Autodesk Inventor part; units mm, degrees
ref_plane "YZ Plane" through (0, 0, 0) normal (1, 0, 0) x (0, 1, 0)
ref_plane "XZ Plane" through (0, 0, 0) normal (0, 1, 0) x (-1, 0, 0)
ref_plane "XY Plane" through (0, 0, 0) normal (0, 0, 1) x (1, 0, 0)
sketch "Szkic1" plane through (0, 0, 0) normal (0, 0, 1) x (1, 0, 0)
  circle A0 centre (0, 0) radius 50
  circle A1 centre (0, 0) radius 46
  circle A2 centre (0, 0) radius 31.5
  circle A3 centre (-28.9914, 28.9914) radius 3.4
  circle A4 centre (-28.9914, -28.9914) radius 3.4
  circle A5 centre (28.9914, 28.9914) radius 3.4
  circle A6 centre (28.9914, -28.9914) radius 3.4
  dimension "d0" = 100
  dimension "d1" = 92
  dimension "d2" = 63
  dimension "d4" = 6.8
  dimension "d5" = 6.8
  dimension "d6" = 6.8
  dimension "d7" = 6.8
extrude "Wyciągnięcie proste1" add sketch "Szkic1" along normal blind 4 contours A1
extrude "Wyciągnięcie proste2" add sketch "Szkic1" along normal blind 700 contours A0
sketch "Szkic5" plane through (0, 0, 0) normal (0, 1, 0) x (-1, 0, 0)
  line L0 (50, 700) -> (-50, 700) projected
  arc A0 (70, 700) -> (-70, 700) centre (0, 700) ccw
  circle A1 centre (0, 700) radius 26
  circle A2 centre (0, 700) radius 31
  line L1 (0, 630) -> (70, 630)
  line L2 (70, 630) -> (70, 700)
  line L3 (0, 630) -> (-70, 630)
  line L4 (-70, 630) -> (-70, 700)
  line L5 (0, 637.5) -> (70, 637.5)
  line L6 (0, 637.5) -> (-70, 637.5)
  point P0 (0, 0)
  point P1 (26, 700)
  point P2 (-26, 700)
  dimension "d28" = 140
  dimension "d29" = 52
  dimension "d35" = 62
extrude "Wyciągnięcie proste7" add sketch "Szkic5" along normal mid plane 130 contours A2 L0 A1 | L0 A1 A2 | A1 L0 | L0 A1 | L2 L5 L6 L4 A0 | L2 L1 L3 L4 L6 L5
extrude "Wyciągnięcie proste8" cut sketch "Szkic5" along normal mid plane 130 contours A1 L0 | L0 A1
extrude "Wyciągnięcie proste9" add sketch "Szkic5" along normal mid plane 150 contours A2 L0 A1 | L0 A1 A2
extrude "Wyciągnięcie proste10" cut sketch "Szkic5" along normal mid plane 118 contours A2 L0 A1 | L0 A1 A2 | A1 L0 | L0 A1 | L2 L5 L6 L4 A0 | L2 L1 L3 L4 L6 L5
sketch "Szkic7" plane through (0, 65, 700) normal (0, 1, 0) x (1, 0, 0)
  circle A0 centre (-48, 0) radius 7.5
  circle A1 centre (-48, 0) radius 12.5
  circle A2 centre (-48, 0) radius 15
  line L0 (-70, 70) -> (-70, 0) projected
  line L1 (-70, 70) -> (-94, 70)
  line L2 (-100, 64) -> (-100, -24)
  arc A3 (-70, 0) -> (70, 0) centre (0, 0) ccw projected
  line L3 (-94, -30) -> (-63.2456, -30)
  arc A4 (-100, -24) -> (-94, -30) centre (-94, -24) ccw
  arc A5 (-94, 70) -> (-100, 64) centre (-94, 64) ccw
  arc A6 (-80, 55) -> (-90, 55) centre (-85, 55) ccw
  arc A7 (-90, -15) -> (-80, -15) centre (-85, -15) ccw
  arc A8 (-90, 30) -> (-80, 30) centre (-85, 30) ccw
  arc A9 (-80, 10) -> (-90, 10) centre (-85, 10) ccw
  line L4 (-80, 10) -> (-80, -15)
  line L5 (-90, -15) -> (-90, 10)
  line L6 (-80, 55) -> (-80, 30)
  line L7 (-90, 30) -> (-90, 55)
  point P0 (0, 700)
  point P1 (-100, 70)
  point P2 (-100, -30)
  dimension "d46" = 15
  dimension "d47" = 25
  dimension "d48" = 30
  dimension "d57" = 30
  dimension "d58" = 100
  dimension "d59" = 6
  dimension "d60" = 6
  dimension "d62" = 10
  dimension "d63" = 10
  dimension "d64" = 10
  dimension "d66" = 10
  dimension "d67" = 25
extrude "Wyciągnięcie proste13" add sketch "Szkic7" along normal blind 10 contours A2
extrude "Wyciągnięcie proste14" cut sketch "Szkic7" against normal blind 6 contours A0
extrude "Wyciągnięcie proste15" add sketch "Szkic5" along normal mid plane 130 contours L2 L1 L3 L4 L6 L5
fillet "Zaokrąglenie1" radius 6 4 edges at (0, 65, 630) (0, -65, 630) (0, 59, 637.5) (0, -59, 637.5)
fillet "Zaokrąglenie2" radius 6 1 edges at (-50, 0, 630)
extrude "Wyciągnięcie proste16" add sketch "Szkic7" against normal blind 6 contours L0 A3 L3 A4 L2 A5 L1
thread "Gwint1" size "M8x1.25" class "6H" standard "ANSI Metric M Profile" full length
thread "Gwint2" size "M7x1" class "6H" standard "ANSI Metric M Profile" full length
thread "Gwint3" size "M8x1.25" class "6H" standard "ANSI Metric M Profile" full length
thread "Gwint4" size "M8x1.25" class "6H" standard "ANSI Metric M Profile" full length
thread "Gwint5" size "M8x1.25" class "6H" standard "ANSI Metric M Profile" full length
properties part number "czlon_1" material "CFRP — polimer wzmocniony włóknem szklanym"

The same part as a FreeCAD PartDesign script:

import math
import FreeCAD as App
import Part
import Sketcher


def edges_at(feature, points):
    """Names of the edges that pass closest to the given points."""
    edges = feature.Shape.Edges
    near = lambda p: min(range(len(edges)), key=lambda i: edges[i].distToShape(Part.Vertex(*p))[0])
    return sorted({f"Edge{near(p) + 1}" for p in points})

doc = App.newDocument("Part")
params = doc.addObject("Spreadsheet::Sheet", "Params")
for row, (alias, value) in enumerate([
    ("sketch1_diameter", "92 mm"),
    ("sketch1_diameter2", "63 mm"),
    ("sketch1_diameter3", "6.8 mm"),
    ("pad1_length", "4 mm"),
    ("sketch2_diameter", "100 mm"),
    ("sketch2_diameter2", "92 mm"),
    ("pad2_length", "700 mm"),
    ("sketch3_radius", "70 mm"),
    ("sketch3_height", "70 mm"),
    ("pad3_length", "130 mm"),
    ("sketch4_diameter", "52 mm"),
    ("pocket1_length", "130 mm"),
    ("sketch5_diameter", "62 mm"),
    ("sketch5_diameter2", "52 mm"),
    ("pad4_length", "150 mm"),
    ("sketch6_radius", "70 mm"),
    ("sketch6_height", "70 mm"),
    ("pocket2_length", "118 mm"),
    ("sketch7_diameter", "30 mm"),
    ("sketch7_diameter2", "25 mm"),
    ("pad5_length", "10 mm"),
    ("sketch8_diameter", "15 mm"),
    ("pocket3_length", "6 mm"),
    ("sketch9_width", "140 mm"),
    ("sketch9_height", "7.5 mm"),
    ("pad6_length", "130 mm"),
    ("fillet_radius", "6 mm"),
    ("fillet2_radius", "6 mm"),
    ("sketch10_radius", "6 mm"),
    ("sketch10_radius2", "5 mm"),
    ("sketch10_height", "25 mm"),
    ("sketch10_radius3", "70 mm"),
    ("pad7_length", "6 mm"),
], start=1):
    params.set(f"A{row}", alias)
    params.set(f"B{row}", "=" + value)
    params.setAlias(f"B{row}", alias)

body = doc.addObject("PartDesign::Body", "Body")
body.AllowCompound = True

# Sketch on XY plane
sketch1 = body.newObject("Sketcher::SketchObject", "Sketch")
sketch1.AttachmentSupport = (doc.getObject("XY_Plane"), [""])
sketch1.MapMode = "FlatFace"
sketch1.addGeometry(Part.Circle(App.Vector(0, 0, 0), App.Vector(0, 0, 1), 46), False)
sketch1.addGeometry(Part.Circle(App.Vector(-29, -29, 0), App.Vector(0, 0, 1), 3.4), False)
sketch1.addGeometry(Part.Circle(App.Vector(29, -29, 0), App.Vector(0, 0, 1), 3.4), False)
sketch1.addGeometry(Part.Circle(App.Vector(-29, 29, 0), App.Vector(0, 0, 1), 3.4), False)
sketch1.addGeometry(Part.Circle(App.Vector(0, 0, 0), App.Vector(0, 0, 1), 31.5), False)
sketch1.addGeometry(Part.Circle(App.Vector(29, 29, 0), App.Vector(0, 0, 1), 3.4), False)
sketch1.addConstraint(Sketcher.Constraint("Coincident", 0, 3, -1, 1))
sketch1.addConstraint(Sketcher.Constraint("Coincident", 4, 3, -1, 1))
sketch1.addConstraint(Sketcher.Constraint("Equal", 1, 2))
sketch1.addConstraint(Sketcher.Constraint("Equal", 2, 3))
sketch1.addConstraint(Sketcher.Constraint("Equal", 3, 5))
sketch1.addConstraint(Sketcher.Constraint("Symmetric", 2, 3, 3, 3, -1, 1))
sketch1.addConstraint(Sketcher.Constraint("Symmetric", 1, 3, 5, 3, -1, 1))
sketch1.addConstraint(Sketcher.Constraint("Symmetric", 1, 3, 2, 3, -2))
sketch1.addConstraint(Sketcher.Constraint("Diameter", 0, 92.0))
sketch1.addConstraint(Sketcher.Constraint("Diameter", 4, 63.0))
sketch1.addConstraint(Sketcher.Constraint("Diameter", 1, 6.8))
sketch1.addConstraint(Sketcher.Constraint("DistanceX", 1, 3, -1, 1, 28.9914))
sketch1.addConstraint(Sketcher.Constraint("DistanceY", 1, 3, -1, 1, 28.9914))
sketch1.setExpression("Constraints[8]", "Params.sketch1_diameter")
sketch1.setExpression("Constraints[9]", "Params.sketch1_diameter2")
sketch1.setExpression("Constraints[10]", "Params.sketch1_diameter3")
pad1 = body.newObject("PartDesign::Pad", "Pad")
pad1.Profile = sketch1
pad1.setExpression("Length", "Params.pad1_length")

# Sketch on XY plane
sketch2 = body.newObject("Sketcher::SketchObject", "Sketch001")
sketch2.AttachmentSupport = (doc.getObject("XY_Plane"), [""])
sketch2.MapMode = "FlatFace"
sketch2.addGeometry(Part.Circle(App.Vector(0, 0, 0), App.Vector(0, 0, 1), 50), False)
sketch2.addGeometry(Part.Circle(App.Vector(0, 0, 0), App.Vector(0, 0, 1), 46), False)
sketch2.addConstraint(Sketcher.Constraint("Coincident", 0, 3, -1, 1))
sketch2.addConstraint(Sketcher.Constraint("Coincident", 1, 3, -1, 1))
sketch2.addConstraint(Sketcher.Constraint("Diameter", 0, 100.0))
sketch2.addConstraint(Sketcher.Constraint("Diameter", 1, 92.0))
sketch2.setExpression("Constraints[2]", "Params.sketch2_diameter")
sketch2.setExpression("Constraints[3]", "Params.sketch2_diameter2")
pad2 = body.newObject("PartDesign::Pad", "Pad001")
pad2.Profile = sketch2
pad2.setExpression("Length", "Params.pad2_length")

# Sketch on XZ plane
sketch3 = body.newObject("Sketcher::SketchObject", "Sketch002")
sketch3.AttachmentSupport = (doc.getObject("XZ_Plane"), [""])
sketch3.MapMode = "FlatFace"
sketch3.addGeometry(Part.ArcOfCircle(Part.Circle(App.Vector(0, 700, 0), App.Vector(0, 0, 1), 70), math.radians(0), math.radians(180)), False)
sketch3.addGeometry(Part.LineSegment(App.Vector(70, 700, 0), App.Vector(70, 630, 0)), False)
sketch3.addGeometry(Part.LineSegment(App.Vector(70, 630, 0), App.Vector(-70, 630, 0)), False)
sketch3.addGeometry(Part.LineSegment(App.Vector(-70, 630, 0), App.Vector(-70, 700, 0)), False)
sketch3.addConstraint(Sketcher.Constraint("Tangent", 0, 1, 1, 1))
sketch3.addConstraint(Sketcher.Constraint("Coincident", 1, 2, 2, 1))
sketch3.addConstraint(Sketcher.Constraint("Coincident", 2, 2, 3, 1))
sketch3.addConstraint(Sketcher.Constraint("Tangent", 3, 2, 0, 2))
sketch3.addConstraint(Sketcher.Constraint("Vertical", 1))
sketch3.addConstraint(Sketcher.Constraint("Horizontal", 2))
sketch3.addConstraint(Sketcher.Constraint("Vertical", 3))
sketch3.addConstraint(Sketcher.Constraint("PointOnObject", 0, 3, -2))
sketch3.addConstraint(Sketcher.Constraint("Radius", 0, 70.0))
sketch3.addConstraint(Sketcher.Constraint("DistanceY", 1, 2, 1, 1, 70.0))
sketch3.addConstraint(Sketcher.Constraint("DistanceY", -1, 1, 0, 3, 700.0))
sketch3.setExpression("Constraints[8]", "Params.sketch3_radius")
sketch3.setExpression("Constraints[9]", "Params.sketch3_height")
pad3 = body.newObject("PartDesign::Pad", "Pad002")
pad3.Profile = sketch3
pad3.setExpression("Length", "Params.pad3_length")
pad3.Midplane = True

# Sketch on XZ plane
sketch4 = body.newObject("Sketcher::SketchObject", "Sketch003")
sketch4.AttachmentSupport = (doc.getObject("XZ_Plane"), [""])
sketch4.MapMode = "FlatFace"
sketch4.addGeometry(Part.Circle(App.Vector(0, 700, 0), App.Vector(0, 0, 1), 26), False)
sketch4.addConstraint(Sketcher.Constraint("PointOnObject", 0, 3, -2))
sketch4.addConstraint(Sketcher.Constraint("Diameter", 0, 52.0))
sketch4.addConstraint(Sketcher.Constraint("DistanceY", -1, 1, 0, 3, 700.0))
sketch4.setExpression("Constraints[1]", "Params.sketch4_diameter")
pocket1 = body.newObject("PartDesign::Pocket", "Pocket")
pocket1.Profile = sketch4
pocket1.setExpression("Length", "Params.pocket1_length")
pocket1.Midplane = True

# Sketch on XZ plane
sketch5 = body.newObject("Sketcher::SketchObject", "Sketch004")
sketch5.AttachmentSupport = (doc.getObject("XZ_Plane"), [""])
sketch5.MapMode = "FlatFace"
sketch5.addGeometry(Part.Circle(App.Vector(0, 700, 0), App.Vector(0, 0, 1), 31), False)
sketch5.addGeometry(Part.Circle(App.Vector(0, 700, 0), App.Vector(0, 0, 1), 26), False)
sketch5.addConstraint(Sketcher.Constraint("Coincident", 1, 3, 0, 3))
sketch5.addConstraint(Sketcher.Constraint("PointOnObject", 0, 3, -2))
sketch5.addConstraint(Sketcher.Constraint("Diameter", 0, 62.0))
sketch5.addConstraint(Sketcher.Constraint("Diameter", 1, 52.0))
sketch5.addConstraint(Sketcher.Constraint("DistanceY", -1, 1, 0, 3, 700.0))
sketch5.setExpression("Constraints[2]", "Params.sketch5_diameter")
sketch5.setExpression("Constraints[3]", "Params.sketch5_diameter2")
pad4 = body.newObject("PartDesign::Pad", "Pad003")
pad4.Profile = sketch5
pad4.setExpression("Length", "Params.pad4_length")
pad4.Midplane = True

# Sketch on XZ plane
sketch6 = body.newObject("Sketcher::SketchObject", "Sketch005")
sketch6.AttachmentSupport = (doc.getObject("XZ_Plane"), [""])
sketch6.MapMode = "FlatFace"
sketch6.addGeometry(Part.ArcOfCircle(Part.Circle(App.Vector(0, 700, 0), App.Vector(0, 0, 1), 70), math.radians(0), math.radians(180)), False)
sketch6.addGeometry(Part.LineSegment(App.Vector(70, 700, 0), App.Vector(70, 630, 0)), False)
sketch6.addGeometry(Part.LineSegment(App.Vector(70, 630, 0), App.Vector(-70, 630, 0)), False)
sketch6.addGeometry(Part.LineSegment(App.Vector(-70, 630, 0), App.Vector(-70, 700, 0)), False)
sketch6.addConstraint(Sketcher.Constraint("Tangent", 0, 1, 1, 1))
sketch6.addConstraint(Sketcher.Constraint("Coincident", 1, 2, 2, 1))
sketch6.addConstraint(Sketcher.Constraint("Coincident", 2, 2, 3, 1))
sketch6.addConstraint(Sketcher.Constraint("Tangent", 3, 2, 0, 2))
sketch6.addConstraint(Sketcher.Constraint("Vertical", 1))
sketch6.addConstraint(Sketcher.Constraint("Horizontal", 2))
sketch6.addConstraint(Sketcher.Constraint("Vertical", 3))
sketch6.addConstraint(Sketcher.Constraint("PointOnObject", 0, 3, -2))
sketch6.addConstraint(Sketcher.Constraint("Radius", 0, 70.0))
sketch6.addConstraint(Sketcher.Constraint("DistanceY", 1, 2, 1, 1, 70.0))
sketch6.addConstraint(Sketcher.Constraint("DistanceY", -1, 1, 0, 3, 700.0))
sketch6.setExpression("Constraints[8]", "Params.sketch6_radius")
sketch6.setExpression("Constraints[9]", "Params.sketch6_height")
pocket2 = body.newObject("PartDesign::Pocket", "Pocket001")
pocket2.Profile = sketch6
pocket2.setExpression("Length", "Params.pocket2_length")
pocket2.Midplane = True

# Sketch on XZ plane
sketch7 = body.newObject("Sketcher::SketchObject", "Sketch006")
sketch7.AttachmentSupport = (doc.getObject("XZ_Plane"), [""])
sketch7.MapMode = "FlatFace"
sketch7.AttachmentOffset = App.Placement(App.Vector(0, 0, -65), App.Rotation())
sketch7.addGeometry(Part.Circle(App.Vector(-48, 700, 0), App.Vector(0, 0, 1), 15), False)
sketch7.addGeometry(Part.Circle(App.Vector(-48, 700, 0), App.Vector(0, 0, 1), 12), False)
sketch7.addConstraint(Sketcher.Constraint("Coincident", 1, 3, 0, 3))
sketch7.addConstraint(Sketcher.Constraint("Diameter", 0, 30.0))
sketch7.addConstraint(Sketcher.Constraint("Diameter", 1, 25.0))
sketch7.addConstraint(Sketcher.Constraint("DistanceX", 0, 3, -1, 1, 48.0))
sketch7.addConstraint(Sketcher.Constraint("DistanceY", -1, 1, 0, 3, 700.0))
sketch7.setExpression("Constraints[1]", "Params.sketch7_diameter")
sketch7.setExpression("Constraints[2]", "Params.sketch7_diameter2")
pad5 = body.newObject("PartDesign::Pad", "Pad004")
pad5.Profile = sketch7
pad5.setExpression("Length", "Params.pad5_length")
pad5.Reversed = True

# Sketch on XZ plane
sketch8 = body.newObject("Sketcher::SketchObject", "Sketch007")
sketch8.AttachmentSupport = (doc.getObject("XZ_Plane"), [""])
sketch8.MapMode = "FlatFace"
sketch8.AttachmentOffset = App.Placement(App.Vector(0, 0, -65), App.Rotation())
sketch8.addGeometry(Part.Circle(App.Vector(-48, 700, 0), App.Vector(0, 0, 1), 8), False)
sketch8.addConstraint(Sketcher.Constraint("Diameter", 0, 15.0))
sketch8.addConstraint(Sketcher.Constraint("DistanceX", 0, 3, -1, 1, 48.0))
sketch8.addConstraint(Sketcher.Constraint("DistanceY", -1, 1, 0, 3, 700.0))
sketch8.setExpression("Constraints[0]", "Params.sketch8_diameter")
pocket3 = body.newObject("PartDesign::Pocket", "Pocket002")
pocket3.Profile = sketch8
pocket3.setExpression("Length", "Params.pocket3_length")
pocket3.Reversed = True

# Sketch on XZ plane
sketch9 = body.newObject("Sketcher::SketchObject", "Sketch008")
sketch9.AttachmentSupport = (doc.getObject("XZ_Plane"), [""])
sketch9.MapMode = "FlatFace"
sketch9.addGeometry(Part.LineSegment(App.Vector(-70, 630, 0), App.Vector(-70, 638, 0)), False)
sketch9.addGeometry(Part.LineSegment(App.Vector(-70, 638, 0), App.Vector(70, 638, 0)), False)
sketch9.addGeometry(Part.LineSegment(App.Vector(70, 638, 0), App.Vector(70, 630, 0)), False)
sketch9.addGeometry(Part.LineSegment(App.Vector(70, 630, 0), App.Vector(-70, 630, 0)), False)
sketch9.addConstraint(Sketcher.Constraint("Coincident", 0, 2, 1, 1))
sketch9.addConstraint(Sketcher.Constraint("Coincident", 1, 2, 2, 1))
sketch9.addConstraint(Sketcher.Constraint("Coincident", 2, 2, 3, 1))
sketch9.addConstraint(Sketcher.Constraint("Coincident", 3, 2, 0, 1))
sketch9.addConstraint(Sketcher.Constraint("Vertical", 0))
sketch9.addConstraint(Sketcher.Constraint("Horizontal", 1))
sketch9.addConstraint(Sketcher.Constraint("Vertical", 2))
sketch9.addConstraint(Sketcher.Constraint("Horizontal", 3))
sketch9.addConstraint(Sketcher.Constraint("DistanceX", 1, 1, 1, 2, 140.0))
sketch9.addConstraint(Sketcher.Constraint("DistanceY", 0, 1, 0, 2, 7.5))
sketch9.addConstraint(Sketcher.Constraint("DistanceX", 0, 2, -1, 1, 70.0))
sketch9.addConstraint(Sketcher.Constraint("DistanceY", -1, 1, 2, 2, 630.0))
sketch9.setExpression("Constraints[8]", "Params.sketch9_width")
sketch9.setExpression("Constraints[9]", "Params.sketch9_height")
pad6 = body.newObject("PartDesign::Pad", "Pad005")
pad6.Profile = sketch9
pad6.setExpression("Length", "Params.pad6_length")
pad6.Midplane = True
doc.recompute()

fillet = body.newObject("PartDesign::Fillet", "Fillet")
fillet.Base = (pad6, edges_at(pad6, [
    (0, 65, 630),
    (0, -65, 630),
    (0, 59, 637.5),
    (0, -59, 637.5),
]))
fillet.setExpression("Radius", "Params.fillet_radius")
doc.recompute()

fillet2 = body.newObject("PartDesign::Fillet", "Fillet001")
fillet2.Base = (fillet, edges_at(fillet, [(-50, 0, 630)]))
fillet2.setExpression("Radius", "Params.fillet2_radius")

# Sketch on XZ plane
sketch10 = body.newObject("Sketcher::SketchObject", "Sketch009")
sketch10.AttachmentSupport = (doc.getObject("XZ_Plane"), [""])
sketch10.MapMode = "FlatFace"
sketch10.AttachmentOffset = App.Placement(App.Vector(0, 0, -65), App.Rotation())
sketch10.addGeometry(Part.LineSegment(App.Vector(-70, 700, 0), App.Vector(-70, 630, 0)), False)
sketch10.addGeometry(Part.LineSegment(App.Vector(-70, 630, 0), App.Vector(-94, 630, 0)), False)
sketch10.addGeometry(Part.ArcOfCircle(Part.Circle(App.Vector(-94, 636, 0), App.Vector(0, 0, 1), 6), math.radians(180), math.radians(270)), False)
sketch10.addGeometry(Part.LineSegment(App.Vector(-100, 636, 0), App.Vector(-100, 724, 0)), False)
sketch10.addGeometry(Part.ArcOfCircle(Part.Circle(App.Vector(-94, 724, 0), App.Vector(0, 0, 1), 6), math.radians(90), math.radians(180)), False)
sketch10.addGeometry(Part.LineSegment(App.Vector(-94, 730, 0), App.Vector(-63, 730, 0)), False)
sketch10.addGeometry(Part.ArcOfCircle(Part.Circle(App.Vector(0, 700, 0), App.Vector(0, 0, 1), 70), math.radians(155), math.radians(180)), False)
sketch10.addGeometry(Part.ArcOfCircle(Part.Circle(App.Vector(-85, 715, 0), App.Vector(0, 0, 1), 5), math.radians(0), math.radians(180)), False)
sketch10.addGeometry(Part.LineSegment(App.Vector(-90, 715, 0), App.Vector(-90, 690, 0)), False)
sketch10.addGeometry(Part.ArcOfCircle(Part.Circle(App.Vector(-85, 690, 0), App.Vector(0, 0, 1), 5), math.radians(180), math.radians(360)), False)
sketch10.addGeometry(Part.LineSegment(App.Vector(-80, 690, 0), App.Vector(-80, 715, 0)), False)
sketch10.addGeometry(Part.ArcOfCircle(Part.Circle(App.Vector(-85, 645, 0), App.Vector(0, 0, 1), 5), math.radians(180), math.radians(360)), False)
sketch10.addGeometry(Part.LineSegment(App.Vector(-80, 645, 0), App.Vector(-80, 670, 0)), False)
sketch10.addGeometry(Part.ArcOfCircle(Part.Circle(App.Vector(-85, 670, 0), App.Vector(0, 0, 1), 5), math.radians(0), math.radians(180)), False)
sketch10.addGeometry(Part.LineSegment(App.Vector(-90, 670, 0), App.Vector(-90, 645, 0)), False)
sketch10.addConstraint(Sketcher.Constraint("Coincident", 0, 2, 1, 1))
sketch10.addConstraint(Sketcher.Constraint("Tangent", 1, 2, 2, 2))
sketch10.addConstraint(Sketcher.Constraint("Tangent", 2, 1, 3, 1))
sketch10.addConstraint(Sketcher.Constraint("Tangent", 3, 2, 4, 2))
sketch10.addConstraint(Sketcher.Constraint("Tangent", 4, 1, 5, 1))
sketch10.addConstraint(Sketcher.Constraint("Coincident", 5, 2, 6, 1))
sketch10.addConstraint(Sketcher.Constraint("Tangent", 6, 2, 0, 1))
sketch10.addConstraint(Sketcher.Constraint("Tangent", 7, 2, 8, 1))
sketch10.addConstraint(Sketcher.Constraint("Tangent", 8, 2, 9, 1))
sketch10.addConstraint(Sketcher.Constraint("Tangent", 9, 2, 10, 1))
sketch10.addConstraint(Sketcher.Constraint("Tangent", 10, 2, 7, 1))
sketch10.addConstraint(Sketcher.Constraint("Tangent", 11, 2, 12, 1))
sketch10.addConstraint(Sketcher.Constraint("Tangent", 12, 2, 13, 1))
sketch10.addConstraint(Sketcher.Constraint("Tangent", 13, 2, 14, 1))
sketch10.addConstraint(Sketcher.Constraint("Tangent", 14, 2, 11, 1))
sketch10.addConstraint(Sketcher.Constraint("Vertical", 0))
sketch10.addConstraint(Sketcher.Constraint("Horizontal", 1))
sketch10.addConstraint(Sketcher.Constraint("Vertical", 3))
sketch10.addConstraint(Sketcher.Constraint("Horizontal", 5))
sketch10.addConstraint(Sketcher.Constraint("Vertical", 8))
sketch10.addConstraint(Sketcher.Constraint("Vertical", 10))
sketch10.addConstraint(Sketcher.Constraint("Vertical", 12))
sketch10.addConstraint(Sketcher.Constraint("Vertical", 14))
sketch10.addConstraint(Sketcher.Constraint("Equal", 2, 4))
sketch10.addConstraint(Sketcher.Constraint("Equal", 9, 11))
sketch10.addConstraint(Sketcher.Constraint("PointOnObject", 6, 3, -2))
sketch10.addConstraint(Sketcher.Constraint("Vertical", 9, 3, 11, 3))
sketch10.addConstraint(Sketcher.Constraint("Equal", 10, 12))
sketch10.addConstraint(Sketcher.Constraint("Radius", 2, 6.0))
sketch10.addConstraint(Sketcher.Constraint("Radius", 7, 5.0))
sketch10.addConstraint(Sketcher.Constraint("DistanceY", 8, 2, 8, 1, 25.0))
sketch10.addConstraint(Sketcher.Constraint("DistanceX", 2, 1, -1, 1, 100.0))
sketch10.addConstraint(Sketcher.Constraint("Radius", 6, 70.0))
sketch10.addConstraint(Sketcher.Constraint("DistanceY", 6, 3, 7, 3, 15.0))
sketch10.addConstraint(Sketcher.Constraint("DistanceX", 11, 3, 0, 2, 15.0))
sketch10.addConstraint(Sketcher.Constraint("DistanceY", 0, 2, 11, 3, 15.0))
sketch10.addConstraint(Sketcher.Constraint("DistanceY", 7, 3, 4, 1, 15.0))
sketch10.addConstraint(Sketcher.Constraint("DistanceY", 13, 3, 6, 2, 30.0))
sketch10.addConstraint(Sketcher.Constraint("DistanceY", -1, 1, 2, 3, 636.0))
sketch10.setExpression("Constraints[28]", "Params.sketch10_radius")
sketch10.setExpression("Constraints[29]", "Params.sketch10_radius2")
sketch10.setExpression("Constraints[30]", "Params.sketch10_height")
sketch10.setExpression("Constraints[32]", "Params.sketch10_radius3")
pad7 = body.newObject("PartDesign::Pad", "Pad006")
pad7.Profile = sketch10
pad7.setExpression("Length", "Params.pad7_length")

doc.recompute()
